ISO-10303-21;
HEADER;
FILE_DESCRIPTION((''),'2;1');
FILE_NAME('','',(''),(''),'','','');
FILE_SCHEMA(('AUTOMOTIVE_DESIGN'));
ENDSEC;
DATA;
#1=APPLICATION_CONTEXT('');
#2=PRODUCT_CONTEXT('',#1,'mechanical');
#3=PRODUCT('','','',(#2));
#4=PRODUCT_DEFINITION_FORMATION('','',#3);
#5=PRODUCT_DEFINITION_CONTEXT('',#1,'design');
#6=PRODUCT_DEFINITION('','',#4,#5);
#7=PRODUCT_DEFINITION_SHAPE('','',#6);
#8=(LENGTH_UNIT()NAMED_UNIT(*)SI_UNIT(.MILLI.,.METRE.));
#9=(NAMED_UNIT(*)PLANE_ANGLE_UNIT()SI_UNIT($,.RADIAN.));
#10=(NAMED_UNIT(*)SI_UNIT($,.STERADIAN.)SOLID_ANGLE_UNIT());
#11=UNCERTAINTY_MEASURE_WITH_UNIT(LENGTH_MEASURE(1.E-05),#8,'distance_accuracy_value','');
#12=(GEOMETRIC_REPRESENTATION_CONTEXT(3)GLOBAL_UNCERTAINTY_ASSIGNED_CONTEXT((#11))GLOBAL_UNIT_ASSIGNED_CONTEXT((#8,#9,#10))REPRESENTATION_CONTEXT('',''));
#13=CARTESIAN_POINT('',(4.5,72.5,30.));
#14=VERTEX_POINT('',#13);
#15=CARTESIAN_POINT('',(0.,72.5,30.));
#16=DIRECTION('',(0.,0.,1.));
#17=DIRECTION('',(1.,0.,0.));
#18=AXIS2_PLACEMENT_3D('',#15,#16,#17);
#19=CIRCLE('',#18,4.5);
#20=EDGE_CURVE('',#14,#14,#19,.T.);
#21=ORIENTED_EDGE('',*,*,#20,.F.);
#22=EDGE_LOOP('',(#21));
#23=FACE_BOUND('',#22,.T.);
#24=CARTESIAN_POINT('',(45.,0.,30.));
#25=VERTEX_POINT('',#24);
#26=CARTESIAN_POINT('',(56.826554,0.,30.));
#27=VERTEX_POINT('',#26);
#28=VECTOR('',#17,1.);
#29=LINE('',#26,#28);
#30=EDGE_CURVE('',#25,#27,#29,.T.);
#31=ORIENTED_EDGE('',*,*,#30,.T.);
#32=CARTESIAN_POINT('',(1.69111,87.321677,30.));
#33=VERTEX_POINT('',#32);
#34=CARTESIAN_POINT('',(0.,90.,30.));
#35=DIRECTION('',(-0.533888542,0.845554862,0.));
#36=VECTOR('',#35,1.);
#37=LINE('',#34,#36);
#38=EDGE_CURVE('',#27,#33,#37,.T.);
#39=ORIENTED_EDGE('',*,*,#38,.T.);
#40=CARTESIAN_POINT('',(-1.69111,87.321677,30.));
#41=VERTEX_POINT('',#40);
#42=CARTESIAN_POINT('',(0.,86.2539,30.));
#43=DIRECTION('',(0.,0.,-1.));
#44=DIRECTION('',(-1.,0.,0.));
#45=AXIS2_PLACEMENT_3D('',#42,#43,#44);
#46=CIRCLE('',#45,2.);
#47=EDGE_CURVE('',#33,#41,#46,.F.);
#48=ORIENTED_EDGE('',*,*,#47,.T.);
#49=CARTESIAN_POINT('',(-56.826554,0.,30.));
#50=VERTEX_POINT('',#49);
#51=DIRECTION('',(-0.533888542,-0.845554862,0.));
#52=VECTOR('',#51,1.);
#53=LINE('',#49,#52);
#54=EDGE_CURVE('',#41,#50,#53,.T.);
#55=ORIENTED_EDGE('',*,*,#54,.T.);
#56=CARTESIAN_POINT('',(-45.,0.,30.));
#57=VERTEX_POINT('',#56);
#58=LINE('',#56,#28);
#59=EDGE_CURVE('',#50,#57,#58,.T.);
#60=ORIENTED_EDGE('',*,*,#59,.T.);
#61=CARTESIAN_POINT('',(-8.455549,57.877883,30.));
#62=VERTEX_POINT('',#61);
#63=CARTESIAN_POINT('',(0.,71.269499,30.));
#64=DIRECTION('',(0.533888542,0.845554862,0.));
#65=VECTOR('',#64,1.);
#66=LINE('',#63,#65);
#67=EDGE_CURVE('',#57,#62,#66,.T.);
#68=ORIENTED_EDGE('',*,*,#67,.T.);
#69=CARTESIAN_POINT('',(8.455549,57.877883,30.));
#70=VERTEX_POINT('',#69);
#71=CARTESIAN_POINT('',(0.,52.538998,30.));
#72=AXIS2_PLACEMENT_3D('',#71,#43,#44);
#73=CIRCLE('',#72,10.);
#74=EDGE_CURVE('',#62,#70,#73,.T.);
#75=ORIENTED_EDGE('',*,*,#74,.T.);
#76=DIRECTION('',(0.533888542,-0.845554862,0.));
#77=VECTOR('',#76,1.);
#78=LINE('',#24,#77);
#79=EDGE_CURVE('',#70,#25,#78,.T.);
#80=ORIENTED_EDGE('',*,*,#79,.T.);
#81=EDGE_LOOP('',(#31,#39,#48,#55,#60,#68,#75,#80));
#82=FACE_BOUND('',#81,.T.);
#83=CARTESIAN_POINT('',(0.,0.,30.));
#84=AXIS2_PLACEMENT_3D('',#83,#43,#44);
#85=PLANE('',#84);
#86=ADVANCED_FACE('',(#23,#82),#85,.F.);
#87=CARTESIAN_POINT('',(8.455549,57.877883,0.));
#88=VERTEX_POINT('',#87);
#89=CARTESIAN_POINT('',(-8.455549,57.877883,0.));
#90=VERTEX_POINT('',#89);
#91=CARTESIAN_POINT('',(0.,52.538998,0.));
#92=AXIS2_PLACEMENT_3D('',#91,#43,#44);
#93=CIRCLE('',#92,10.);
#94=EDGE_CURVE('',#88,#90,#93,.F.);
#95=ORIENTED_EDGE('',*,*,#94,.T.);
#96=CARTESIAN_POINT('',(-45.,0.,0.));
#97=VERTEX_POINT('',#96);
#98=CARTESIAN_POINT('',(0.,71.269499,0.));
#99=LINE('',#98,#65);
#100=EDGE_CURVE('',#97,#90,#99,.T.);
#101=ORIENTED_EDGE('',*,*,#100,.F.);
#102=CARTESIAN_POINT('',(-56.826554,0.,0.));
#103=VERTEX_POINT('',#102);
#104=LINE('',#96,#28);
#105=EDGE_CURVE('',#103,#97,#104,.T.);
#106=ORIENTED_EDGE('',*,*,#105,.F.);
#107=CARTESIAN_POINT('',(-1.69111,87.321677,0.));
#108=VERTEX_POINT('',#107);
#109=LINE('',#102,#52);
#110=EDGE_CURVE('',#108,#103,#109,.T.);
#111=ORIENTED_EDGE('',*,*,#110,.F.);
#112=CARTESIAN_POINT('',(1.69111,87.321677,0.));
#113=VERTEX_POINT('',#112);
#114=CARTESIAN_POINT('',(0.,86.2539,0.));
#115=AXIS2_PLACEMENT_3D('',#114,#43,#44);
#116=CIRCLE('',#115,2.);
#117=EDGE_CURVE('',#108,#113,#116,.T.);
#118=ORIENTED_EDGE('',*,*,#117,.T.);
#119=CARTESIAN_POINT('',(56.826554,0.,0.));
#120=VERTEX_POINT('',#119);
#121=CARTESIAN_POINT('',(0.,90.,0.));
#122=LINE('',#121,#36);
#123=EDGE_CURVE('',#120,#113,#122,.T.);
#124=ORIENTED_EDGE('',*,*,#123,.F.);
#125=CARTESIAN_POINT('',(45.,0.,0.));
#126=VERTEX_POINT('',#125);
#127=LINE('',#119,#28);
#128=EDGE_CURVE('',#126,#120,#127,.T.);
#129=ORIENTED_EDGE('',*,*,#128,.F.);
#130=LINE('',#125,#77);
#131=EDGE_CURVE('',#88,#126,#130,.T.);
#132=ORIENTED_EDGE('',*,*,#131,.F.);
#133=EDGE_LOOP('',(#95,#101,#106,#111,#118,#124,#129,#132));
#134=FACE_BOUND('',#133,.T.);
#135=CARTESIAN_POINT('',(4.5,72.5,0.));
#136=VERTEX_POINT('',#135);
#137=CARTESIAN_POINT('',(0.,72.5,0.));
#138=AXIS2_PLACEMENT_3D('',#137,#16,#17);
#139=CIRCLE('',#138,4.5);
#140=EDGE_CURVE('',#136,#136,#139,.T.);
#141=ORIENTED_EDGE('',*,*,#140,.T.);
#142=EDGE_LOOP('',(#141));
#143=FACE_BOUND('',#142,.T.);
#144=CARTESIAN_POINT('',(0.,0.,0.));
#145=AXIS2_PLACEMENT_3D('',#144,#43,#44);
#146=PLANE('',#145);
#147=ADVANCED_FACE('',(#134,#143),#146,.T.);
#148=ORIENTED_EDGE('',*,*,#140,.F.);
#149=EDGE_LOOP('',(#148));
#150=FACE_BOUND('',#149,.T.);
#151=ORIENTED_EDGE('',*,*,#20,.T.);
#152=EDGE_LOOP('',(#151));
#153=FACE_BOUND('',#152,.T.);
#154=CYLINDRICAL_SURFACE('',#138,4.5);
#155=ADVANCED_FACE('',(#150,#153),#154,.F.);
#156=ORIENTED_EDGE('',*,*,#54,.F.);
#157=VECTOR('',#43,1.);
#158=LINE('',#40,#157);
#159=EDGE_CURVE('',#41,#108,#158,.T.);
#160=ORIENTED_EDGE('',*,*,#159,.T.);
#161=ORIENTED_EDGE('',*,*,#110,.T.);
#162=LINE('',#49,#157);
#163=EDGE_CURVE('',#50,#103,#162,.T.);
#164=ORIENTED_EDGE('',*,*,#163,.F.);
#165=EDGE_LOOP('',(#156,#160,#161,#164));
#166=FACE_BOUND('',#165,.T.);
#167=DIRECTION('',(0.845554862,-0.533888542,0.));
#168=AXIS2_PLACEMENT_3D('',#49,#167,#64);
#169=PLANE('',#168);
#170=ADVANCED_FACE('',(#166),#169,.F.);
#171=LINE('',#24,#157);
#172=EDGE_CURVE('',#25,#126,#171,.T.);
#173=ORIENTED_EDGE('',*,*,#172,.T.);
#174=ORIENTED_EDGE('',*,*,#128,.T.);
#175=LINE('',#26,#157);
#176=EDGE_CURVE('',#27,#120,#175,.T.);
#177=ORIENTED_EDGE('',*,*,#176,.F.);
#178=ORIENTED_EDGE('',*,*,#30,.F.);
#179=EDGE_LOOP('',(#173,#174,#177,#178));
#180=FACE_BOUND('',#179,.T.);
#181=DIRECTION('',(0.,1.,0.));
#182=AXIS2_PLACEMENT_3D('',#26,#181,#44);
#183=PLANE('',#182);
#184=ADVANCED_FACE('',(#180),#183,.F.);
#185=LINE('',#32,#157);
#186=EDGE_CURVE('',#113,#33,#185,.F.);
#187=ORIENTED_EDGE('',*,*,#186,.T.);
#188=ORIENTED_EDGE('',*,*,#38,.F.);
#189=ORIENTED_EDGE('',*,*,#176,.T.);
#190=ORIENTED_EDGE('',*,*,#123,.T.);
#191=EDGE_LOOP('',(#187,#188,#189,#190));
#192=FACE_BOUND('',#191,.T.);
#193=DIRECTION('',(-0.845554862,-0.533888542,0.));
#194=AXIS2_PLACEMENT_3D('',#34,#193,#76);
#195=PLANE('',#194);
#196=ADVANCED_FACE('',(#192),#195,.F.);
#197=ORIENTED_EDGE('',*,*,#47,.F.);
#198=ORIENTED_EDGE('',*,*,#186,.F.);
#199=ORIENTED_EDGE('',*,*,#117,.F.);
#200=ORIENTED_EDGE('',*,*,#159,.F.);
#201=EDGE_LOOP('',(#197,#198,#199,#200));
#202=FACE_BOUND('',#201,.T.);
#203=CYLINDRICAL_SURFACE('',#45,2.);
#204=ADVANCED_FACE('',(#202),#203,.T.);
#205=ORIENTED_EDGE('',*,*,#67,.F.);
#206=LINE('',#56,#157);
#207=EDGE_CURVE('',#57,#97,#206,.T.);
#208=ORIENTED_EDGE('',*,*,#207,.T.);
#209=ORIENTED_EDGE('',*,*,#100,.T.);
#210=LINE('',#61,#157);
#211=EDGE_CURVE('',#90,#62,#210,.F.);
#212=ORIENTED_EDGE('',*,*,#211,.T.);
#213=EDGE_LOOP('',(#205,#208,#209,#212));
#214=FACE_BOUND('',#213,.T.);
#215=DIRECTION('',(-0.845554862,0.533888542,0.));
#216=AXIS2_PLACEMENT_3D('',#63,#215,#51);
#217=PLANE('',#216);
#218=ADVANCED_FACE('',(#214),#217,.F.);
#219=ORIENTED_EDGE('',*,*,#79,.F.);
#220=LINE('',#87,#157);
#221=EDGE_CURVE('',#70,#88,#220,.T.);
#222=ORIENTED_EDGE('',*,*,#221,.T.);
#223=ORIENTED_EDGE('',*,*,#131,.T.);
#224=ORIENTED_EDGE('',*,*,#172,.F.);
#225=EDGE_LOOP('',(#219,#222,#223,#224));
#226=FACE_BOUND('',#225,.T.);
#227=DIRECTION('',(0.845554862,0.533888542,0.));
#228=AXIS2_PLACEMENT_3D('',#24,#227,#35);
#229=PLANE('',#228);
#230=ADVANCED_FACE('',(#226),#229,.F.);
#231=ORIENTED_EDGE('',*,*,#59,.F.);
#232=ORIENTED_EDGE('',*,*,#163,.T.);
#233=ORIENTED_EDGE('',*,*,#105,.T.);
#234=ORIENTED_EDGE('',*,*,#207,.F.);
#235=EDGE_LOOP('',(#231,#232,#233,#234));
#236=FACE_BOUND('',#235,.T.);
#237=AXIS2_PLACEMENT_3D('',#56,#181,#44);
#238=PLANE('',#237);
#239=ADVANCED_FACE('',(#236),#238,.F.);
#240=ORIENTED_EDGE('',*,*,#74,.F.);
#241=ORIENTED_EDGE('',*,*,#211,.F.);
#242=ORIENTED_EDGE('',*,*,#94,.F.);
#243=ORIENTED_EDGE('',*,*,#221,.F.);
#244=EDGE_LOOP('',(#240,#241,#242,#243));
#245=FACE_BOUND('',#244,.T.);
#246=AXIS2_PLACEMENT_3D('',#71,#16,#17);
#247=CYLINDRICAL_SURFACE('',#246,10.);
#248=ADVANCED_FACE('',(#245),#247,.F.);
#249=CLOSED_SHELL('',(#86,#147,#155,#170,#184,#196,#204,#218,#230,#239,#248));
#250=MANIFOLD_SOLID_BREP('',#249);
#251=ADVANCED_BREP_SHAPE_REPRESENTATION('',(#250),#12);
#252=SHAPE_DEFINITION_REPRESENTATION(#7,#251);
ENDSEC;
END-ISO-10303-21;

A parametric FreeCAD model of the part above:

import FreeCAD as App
import Part
import Sketcher

V = App.Vector


def edges_at(feature, points):
    """Names of the edges that pass closest to the given points."""
    edges = feature.Shape.Edges
    near = lambda p: min(range(len(edges)), key=lambda i: edges[i].distToShape(Part.Vertex(*p))[0])
    return sorted({f"Edge{near(p) + 1}" for p in points})

doc = App.newDocument("Part")
params = doc.addObject("Spreadsheet::Sheet", "Params")
for row, (alias, value) in enumerate([
    ("pad1_length", "30 mm"),
    ("fillet_radius", "2 mm"),
    ("fillet2_radius", "10 mm"),
    ("sketch2_diameter", "9 mm"),
], start=1):
    params.set(f"A{row}", alias)
    params.set(f"B{row}", "=" + value)
    params.setAlias(f"B{row}", alias)

body = doc.addObject("PartDesign::Body", "Body")

sketch1 = body.newObject("Sketcher::SketchObject", "Sketch")
sketch1.AttachmentSupport = (doc.getObject("XY_Plane"), [""])
sketch1.MapMode = "FlatFace"
sketch1.addGeometry([
    Part.LineSegment(V(0, 90, 0), V(-57, 0, 0)),
    Part.LineSegment(V(-57, 0, 0), V(-45, 0, 0)),
    Part.LineSegment(V(-45, 0, 0), V(0, 71, 0)),
    Part.LineSegment(V(0, 71, 0), V(45, 0, 0)),
    Part.LineSegment(V(45, 0, 0), V(57, 0, 0)),
    Part.LineSegment(V(57, 0, 0), V(0, 90, 0)),
], False)
sketch1.addConstraint([
    Sketcher.Constraint("Coincident", 0, 2, 1, 1),
    Sketcher.Constraint("Coincident", 1, 2, 2, 1),
    Sketcher.Constraint("Coincident", 2, 2, 3, 1),
    Sketcher.Constraint("Coincident", 3, 2, 4, 1),
    Sketcher.Constraint("Coincident", 4, 2, 5, 1),
    Sketcher.Constraint("Coincident", 5, 2, 0, 1),
    Sketcher.Constraint("Horizontal", 1),
    Sketcher.Constraint("Horizontal", 4),
    Sketcher.Constraint("Symmetric", 1, 2, 3, 2, -1, 1),
    Sketcher.Constraint("Symmetric", 0, 2, 4, 2, -2),
    Sketcher.Constraint("PointOnObject", 2, 2, -2),
    Sketcher.Constraint("PointOnObject", 5, 2, -2),
    Sketcher.Constraint("Parallel", 0, 2),
    Sketcher.Constraint("DistanceX", 1, 2, -1, 1, 45.0),
    Sketcher.Constraint("DistanceY", -1, 1, 5, 2, 90.0),
    Sketcher.Constraint("DistanceY", -1, 1, 2, 2, 71.269499),
])
pad1 = body.newObject("PartDesign::Pad", "Pad")
pad1.Profile = sketch1
pad1.setExpression("Length", "Params.pad1_length")
doc.recompute()

fillet = body.newObject("PartDesign::Fillet", "Fillet")
fillet.Base = (pad1, edges_at(pad1, [(0, 90, 15)]))
fillet.setExpression("Radius", "Params.fillet_radius")
doc.recompute()

fillet2 = body.newObject("PartDesign::Fillet", "Fillet001")
fillet2.Base = (fillet, edges_at(fillet, [(0, 71.269, 15)]))
fillet2.setExpression("Radius", "Params.fillet2_radius")

sketch2 = body.newObject("Sketcher::SketchObject", "Sketch001")
sketch2.AttachmentSupport = (doc.getObject("XY_Plane"), [""])
sketch2.MapMode = "FlatFace"
sketch2.AttachmentOffset = App.Placement(V(0, 0, 30), App.Rotation())
sketch2.addGeometry(Part.Circle(V(0, 72.5, 0), V(0, 0, 1), 4.5), False)
sketch2.addConstraint([
    Sketcher.Constraint("PointOnObject", 0, 3, -2),
    Sketcher.Constraint("Diameter", 0, 9.0),
    Sketcher.Constraint("DistanceY", -1, 1, 0, 3, 72.5),
])
sketch2.setExpression("Constraints[1]", "Params.sketch2_diameter")
pocket1 = body.newObject("PartDesign::Pocket", "Pocket")
pocket1.Profile = sketch2
pocket1.Type = "ThroughAll"

doc.recompute()
